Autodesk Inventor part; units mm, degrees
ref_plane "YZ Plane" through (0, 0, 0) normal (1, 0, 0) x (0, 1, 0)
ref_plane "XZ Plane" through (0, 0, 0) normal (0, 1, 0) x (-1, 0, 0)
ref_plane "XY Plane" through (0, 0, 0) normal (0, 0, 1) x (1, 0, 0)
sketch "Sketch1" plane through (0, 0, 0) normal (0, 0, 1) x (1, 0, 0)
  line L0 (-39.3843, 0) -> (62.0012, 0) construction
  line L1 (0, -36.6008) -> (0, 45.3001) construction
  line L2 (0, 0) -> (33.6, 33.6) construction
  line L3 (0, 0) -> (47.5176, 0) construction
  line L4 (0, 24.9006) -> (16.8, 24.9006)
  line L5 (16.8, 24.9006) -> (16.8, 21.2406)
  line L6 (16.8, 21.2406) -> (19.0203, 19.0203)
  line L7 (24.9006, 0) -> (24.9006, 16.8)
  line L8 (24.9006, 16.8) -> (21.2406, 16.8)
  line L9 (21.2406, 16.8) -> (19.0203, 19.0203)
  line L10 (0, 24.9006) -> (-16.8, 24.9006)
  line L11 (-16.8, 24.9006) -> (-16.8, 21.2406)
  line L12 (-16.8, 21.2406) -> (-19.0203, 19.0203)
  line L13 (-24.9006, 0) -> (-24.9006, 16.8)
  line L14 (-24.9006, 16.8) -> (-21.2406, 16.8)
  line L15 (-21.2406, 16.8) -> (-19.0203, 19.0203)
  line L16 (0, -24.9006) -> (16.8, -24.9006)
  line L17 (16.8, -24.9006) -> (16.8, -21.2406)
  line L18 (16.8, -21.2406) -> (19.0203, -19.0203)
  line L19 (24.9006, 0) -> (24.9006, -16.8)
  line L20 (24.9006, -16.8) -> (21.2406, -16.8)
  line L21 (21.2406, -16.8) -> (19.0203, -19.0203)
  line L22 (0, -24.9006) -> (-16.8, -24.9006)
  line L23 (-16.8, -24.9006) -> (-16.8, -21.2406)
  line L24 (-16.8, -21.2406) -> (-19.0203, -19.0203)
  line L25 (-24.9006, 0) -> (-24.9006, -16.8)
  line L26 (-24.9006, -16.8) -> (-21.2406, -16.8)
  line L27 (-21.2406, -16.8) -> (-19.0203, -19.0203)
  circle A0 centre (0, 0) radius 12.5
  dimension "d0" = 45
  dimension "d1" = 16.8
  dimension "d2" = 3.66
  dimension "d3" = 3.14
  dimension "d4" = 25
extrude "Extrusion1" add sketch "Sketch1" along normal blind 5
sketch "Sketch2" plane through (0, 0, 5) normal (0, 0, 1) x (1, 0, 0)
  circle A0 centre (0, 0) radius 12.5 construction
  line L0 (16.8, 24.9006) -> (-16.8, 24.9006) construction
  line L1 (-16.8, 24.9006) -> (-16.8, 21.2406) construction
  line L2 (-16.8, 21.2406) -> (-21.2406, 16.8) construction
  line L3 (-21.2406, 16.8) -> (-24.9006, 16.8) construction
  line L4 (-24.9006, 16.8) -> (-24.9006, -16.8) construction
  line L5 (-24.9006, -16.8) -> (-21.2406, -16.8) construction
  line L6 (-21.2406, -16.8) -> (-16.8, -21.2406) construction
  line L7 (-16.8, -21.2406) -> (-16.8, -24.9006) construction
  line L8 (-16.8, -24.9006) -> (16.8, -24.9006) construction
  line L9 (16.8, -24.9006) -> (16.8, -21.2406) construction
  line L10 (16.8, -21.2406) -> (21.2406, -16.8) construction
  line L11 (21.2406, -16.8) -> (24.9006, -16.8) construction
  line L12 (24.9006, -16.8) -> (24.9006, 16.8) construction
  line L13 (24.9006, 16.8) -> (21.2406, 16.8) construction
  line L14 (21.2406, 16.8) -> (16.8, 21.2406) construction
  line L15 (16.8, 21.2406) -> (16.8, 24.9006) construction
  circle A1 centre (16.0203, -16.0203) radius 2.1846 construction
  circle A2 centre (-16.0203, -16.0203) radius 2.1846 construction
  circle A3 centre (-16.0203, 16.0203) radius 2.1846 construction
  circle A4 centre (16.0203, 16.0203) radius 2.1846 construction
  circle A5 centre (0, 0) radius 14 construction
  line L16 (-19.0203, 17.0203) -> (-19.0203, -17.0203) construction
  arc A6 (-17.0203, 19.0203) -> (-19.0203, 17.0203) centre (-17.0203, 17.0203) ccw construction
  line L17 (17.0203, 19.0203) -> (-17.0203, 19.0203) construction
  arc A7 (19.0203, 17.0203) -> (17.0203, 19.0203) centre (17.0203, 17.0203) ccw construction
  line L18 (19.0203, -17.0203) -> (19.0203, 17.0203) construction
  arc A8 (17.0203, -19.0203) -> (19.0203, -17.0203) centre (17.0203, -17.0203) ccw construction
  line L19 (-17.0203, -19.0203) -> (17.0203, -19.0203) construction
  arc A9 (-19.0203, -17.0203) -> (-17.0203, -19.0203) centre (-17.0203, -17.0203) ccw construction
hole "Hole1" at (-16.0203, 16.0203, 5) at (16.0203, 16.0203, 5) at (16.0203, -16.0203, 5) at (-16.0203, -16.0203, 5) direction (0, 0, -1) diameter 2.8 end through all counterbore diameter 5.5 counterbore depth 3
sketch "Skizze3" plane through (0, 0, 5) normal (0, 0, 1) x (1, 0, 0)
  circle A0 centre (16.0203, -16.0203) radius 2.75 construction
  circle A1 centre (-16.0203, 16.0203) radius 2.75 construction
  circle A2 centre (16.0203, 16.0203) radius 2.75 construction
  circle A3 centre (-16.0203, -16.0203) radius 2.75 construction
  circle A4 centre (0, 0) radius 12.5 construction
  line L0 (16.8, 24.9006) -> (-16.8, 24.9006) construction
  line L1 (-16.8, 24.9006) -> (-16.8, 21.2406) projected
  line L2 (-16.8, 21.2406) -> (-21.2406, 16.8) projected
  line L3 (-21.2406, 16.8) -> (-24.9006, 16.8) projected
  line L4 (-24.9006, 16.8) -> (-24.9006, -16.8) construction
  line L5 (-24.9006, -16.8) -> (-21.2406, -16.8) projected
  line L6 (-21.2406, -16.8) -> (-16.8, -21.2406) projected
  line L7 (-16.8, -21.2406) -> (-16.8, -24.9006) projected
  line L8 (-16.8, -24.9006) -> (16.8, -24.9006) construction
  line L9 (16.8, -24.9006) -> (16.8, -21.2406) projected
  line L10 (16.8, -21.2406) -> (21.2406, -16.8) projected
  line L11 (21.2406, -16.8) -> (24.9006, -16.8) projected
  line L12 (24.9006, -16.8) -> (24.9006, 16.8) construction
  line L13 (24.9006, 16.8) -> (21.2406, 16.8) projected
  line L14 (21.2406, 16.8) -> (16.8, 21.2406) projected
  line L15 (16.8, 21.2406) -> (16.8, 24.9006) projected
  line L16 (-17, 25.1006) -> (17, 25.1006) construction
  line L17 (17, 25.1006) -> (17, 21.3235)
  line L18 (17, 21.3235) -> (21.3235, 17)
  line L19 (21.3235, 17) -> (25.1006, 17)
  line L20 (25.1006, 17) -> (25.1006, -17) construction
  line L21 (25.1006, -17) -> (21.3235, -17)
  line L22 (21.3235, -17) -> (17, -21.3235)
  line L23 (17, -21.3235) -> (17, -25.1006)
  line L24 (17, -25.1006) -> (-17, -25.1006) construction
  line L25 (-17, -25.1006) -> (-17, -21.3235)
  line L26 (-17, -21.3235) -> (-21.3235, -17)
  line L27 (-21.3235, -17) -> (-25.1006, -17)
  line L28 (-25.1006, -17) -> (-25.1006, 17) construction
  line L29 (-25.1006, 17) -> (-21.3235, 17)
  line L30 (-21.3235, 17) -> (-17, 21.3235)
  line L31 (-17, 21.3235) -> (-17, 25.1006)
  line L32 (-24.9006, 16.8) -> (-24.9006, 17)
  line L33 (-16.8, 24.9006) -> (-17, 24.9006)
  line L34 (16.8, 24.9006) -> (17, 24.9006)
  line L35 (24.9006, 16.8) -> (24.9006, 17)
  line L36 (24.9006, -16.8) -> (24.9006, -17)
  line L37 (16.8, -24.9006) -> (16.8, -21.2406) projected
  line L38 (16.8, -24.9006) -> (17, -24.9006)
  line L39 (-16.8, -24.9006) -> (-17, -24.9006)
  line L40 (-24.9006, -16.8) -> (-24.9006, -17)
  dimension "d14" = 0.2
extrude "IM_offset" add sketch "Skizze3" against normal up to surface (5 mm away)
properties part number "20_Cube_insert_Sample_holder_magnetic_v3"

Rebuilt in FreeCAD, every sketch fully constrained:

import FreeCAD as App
import Part
import Sketcher

doc = App.newDocument("Part")
body = doc.addObject("PartDesign::Body", "Body")

sketch1 = body.newObject("Sketcher::SketchObject", "Sketch")
sketch1.AttachmentSupport = (doc.getObject("XY_Plane"), [""])
sketch1.MapMode = "FlatFace"
sketch1.addGeometry([
    Part.LineSegment(App.Vector(16.8, 24.9, 0), App.Vector(-16.8, 24.9, 0)),
    Part.LineSegment(App.Vector(-16.8, 24.9, 0), App.Vector(-16.8, 21.2, 0)),
    Part.LineSegment(App.Vector(-16.8, 21.2, 0), App.Vector(-21.2, 16.8, 0)),
    Part.LineSegment(App.Vector(-21.2, 16.8, 0), App.Vector(-24.9, 16.8, 0)),
    Part.LineSegment(App.Vector(-24.9, 16.8, 0), App.Vector(-24.9, -16.8, 0)),
    Part.LineSegment(App.Vector(-24.9, -16.8, 0), App.Vector(-21.2, -16.8, 0)),
    Part.LineSegment(App.Vector(-21.2, -16.8, 0), App.Vector(-16.8, -21.2, 0)),
    Part.LineSegment(App.Vector(-16.8, -21.2, 0), App.Vector(-16.8, -24.9, 0)),
    Part.LineSegment(App.Vector(-16.8, -24.9, 0), App.Vector(16.8, -24.9, 0)),
    Part.LineSegment(App.Vector(16.8, -24.9, 0), App.Vector(16.8, -21.2, 0)),
    Part.LineSegment(App.Vector(16.8, -21.2, 0), App.Vector(21.2, -16.8, 0)),
    Part.LineSegment(App.Vector(21.2, -16.8, 0), App.Vector(24.9, -16.8, 0)),
    Part.LineSegment(App.Vector(24.9, -16.8, 0), App.Vector(24.9, 16.8, 0)),
    Part.LineSegment(App.Vector(24.9, 16.8, 0), App.Vector(21.2, 16.8, 0)),
    Part.LineSegment(App.Vector(21.2, 16.8, 0), App.Vector(16.8, 21.2, 0)),
    Part.LineSegment(App.Vector(16.8, 21.2, 0), App.Vector(16.8, 24.9, 0)),
    Part.Circle(App.Vector(0, 0, 0), App.Vector(0, 0, 1), 12.5),
], False)
sketch1.addConstraint([
    Sketcher.Constraint("Coincident", 0, 2, 1, 1),
    Sketcher.Constraint("Coincident", 1, 2, 2, 1),
    Sketcher.Constraint("Coincident", 2, 2, 3, 1),
    Sketcher.Constraint("Coincident", 3, 2, 4, 1),
    Sketcher.Constraint("Coincident", 4, 2, 5, 1),
    Sketcher.Constraint("Coincident", 5, 2, 6, 1),
    Sketcher.Constraint("Coincident", 6, 2, 7, 1),
    Sketcher.Constraint("Coincident", 7, 2, 8, 1),
    Sketcher.Constraint("Coincident", 8, 2, 9, 1),
    Sketcher.Constraint("Coincident", 9, 2, 10, 1),
    Sketcher.Constraint("Coincident", 10, 2, 11, 1),
    Sketcher.Constraint("Coincident", 11, 2, 12, 1),
    Sketcher.Constraint("Coincident", 12, 2, 13, 1),
    Sketcher.Constraint("Coincident", 13, 2, 14, 1),
    Sketcher.Constraint("Coincident", 14, 2, 15, 1),
    Sketcher.Constraint("Coincident", 15, 2, 0, 1),
    Sketcher.Constraint("Horizontal", 0),
    Sketcher.Constraint("Vertical", 1),
    Sketcher.Constraint("Horizontal", 3),
    Sketcher.Constraint("Vertical", 4),
    Sketcher.Constraint("Horizontal", 5),
    Sketcher.Constraint("Vertical", 7),
    Sketcher.Constraint("Horizontal", 8),
    Sketcher.Constraint("Vertical", 9),
    Sketcher.Constraint("Horizontal", 11),
    Sketcher.Constraint("Vertical", 12),
    Sketcher.Constraint("Horizontal", 13),
    Sketcher.Constraint("Vertical", 15),
    Sketcher.Constraint("Coincident", 16, 3, -1, 1),
    Sketcher.Constraint("Symmetric", 0, 2, 8, 2, -1, 1),
    Sketcher.Constraint("Symmetric", 2, 2, 10, 2, -1, 1),
    Sketcher.Constraint("Symmetric", 4, 2, 12, 2, -1, 1),
    Sketcher.Constraint("Symmetric", 6, 2, 14, 2, -1, 1),
    Sketcher.Constraint("Symmetric", 6, 2, 9, 2, -2),
    Sketcher.Constraint("Symmetric", 5, 2, 10, 2, -2),
    Sketcher.Constraint("Perpendicular", 2, 6),
    Sketcher.Constraint("Perpendicular", 6, 10),
    Sketcher.Constraint("Perpendicular", 10, 14),
    Sketcher.Constraint("Equal", 13, 1),
    Sketcher.Constraint("Equal", 8, 4),
    Sketcher.Constraint("Diameter", 16, 25.0),
    Sketcher.Constraint("DistanceX", 3, 2, 3, 1, 3.66),
    Sketcher.Constraint("DistanceX", 0, 2, -1, 1, 16.8),
    Sketcher.Constraint("Distance", 2, 6.28),
])
pad1 = body.newObject("PartDesign::Pad", "Pad")
pad1.Profile = sketch1
pad1.Length = 5

sketch2 = body.newObject("Sketcher::SketchObject", "Sketch001")
sketch2.AttachmentSupport = (doc.getObject("XY_Plane"), [""])
sketch2.MapMode = "FlatFace"
sketch2.AttachmentOffset = App.Placement(App.Vector(0, 0, 5), App.Rotation())
sketch2.addGeometry([
    Part.Circle(App.Vector(-16, 16, 0), App.Vector(0, 0, 1), 1.4),
    Part.Circle(App.Vector(16, 16, 0), App.Vector(0, 0, 1), 1.4),
    Part.Circle(App.Vector(16, -16, 0), App.Vector(0, 0, 1), 1.4),
    Part.Circle(App.Vector(-16, -16, 0), App.Vector(0, 0, 1), 1.4),
], False)
sketch2.addConstraint([
    Sketcher.Constraint("Equal", 0, 1),
    Sketcher.Constraint("Equal", 1, 2),
    Sketcher.Constraint("Equal", 2, 3),
    Sketcher.Constraint("Symmetric", 0, 3, 2, 3, -1, 1),
    Sketcher.Constraint("Symmetric", 1, 3, 3, 3, -1, 1),
    Sketcher.Constraint("Symmetric", 0, 3, 1, 3, -2),
    Sketcher.Constraint("Diameter", 0, 2.8),
    Sketcher.Constraint("DistanceX", 0, 3, -1, 1, 16.0203),
    Sketcher.Constraint("DistanceY", -1, 1, 0, 3, 16.0203),
])
doc.recompute()
hole = body.newObject("PartDesign::Hole", "Hole")
hole.Profile = sketch2
hole.ThreadType = "None"
hole.Diameter = 2.8
hole.DepthType = "ThroughAll"
hole.HoleCutType = "Counterbore"
hole.HoleCutDiameter = 5.5
hole.HoleCutDepth = 3

sketch3 = body.newObject("Sketcher::SketchObject", "Sketch002")
sketch3.AttachmentSupport = (doc.getObject("XY_Plane"), [""])
sketch3.MapMode = "FlatFace"
sketch3.AttachmentOffset = App.Placement(App.Vector(0, 0, 5), App.Rotation())
sketch3.addGeometry([
    Part.LineSegment(App.Vector(-16.8, 21.24, 0), App.Vector(-16.8, 24.9, 0)),
    Part.LineSegment(App.Vector(-16.8, 24.9, 0), App.Vector(-17, 24.9, 0)),
    Part.LineSegment(App.Vector(-17, 24.9, 0), App.Vector(-17, 21.32, 0)),
    Part.LineSegment(App.Vector(-17, 21.32, 0), App.Vector(-21.32, 17, 0)),
    Part.LineSegment(App.Vector(-21.32, 17, 0), App.Vector(-24.9, 17, 0)),
    Part.LineSegment(App.Vector(-24.9, 17, 0), App.Vector(-24.9, 16.8, 0)),
    Part.LineSegment(App.Vector(-24.9, 16.8, 0), App.Vector(-21.24, 16.8, 0)),
    Part.LineSegment(App.Vector(-21.24, 16.8, 0), App.Vector(-16.8, 21.24, 0)),
    Part.LineSegment(App.Vector(-21.24, -16.8, 0), App.Vector(-24.9, -16.8, 0)),
    Part.LineSegment(App.Vector(-24.9, -16.8, 0), App.Vector(-24.9, -17, 0)),
    Part.LineSegment(App.Vector(-24.9, -17, 0), App.Vector(-21.32, -17, 0)),
    Part.LineSegment(App.Vector(-21.32, -17, 0), App.Vector(-17, -21.32, 0)),
    Part.LineSegment(App.Vector(-17, -21.32, 0), App.Vector(-17, -24.9, 0)),
    Part.LineSegment(App.Vector(-17, -24.9, 0), App.Vector(-16.8, -24.9, 0)),
    Part.LineSegment(App.Vector(-16.8, -24.9, 0), App.Vector(-16.8, -21.24, 0)),
    Part.LineSegment(App.Vector(-16.8, -21.24, 0), App.Vector(-21.24, -16.8, 0)),
    Part.LineSegment(App.Vector(16.8, -21.24, 0), App.Vector(16.8, -24.9, 0)),
    Part.LineSegment(App.Vector(16.8, -24.9, 0), App.Vector(17, -24.9, 0)),
    Part.LineSegment(App.Vector(17, -24.9, 0), App.Vector(17, -21.32, 0)),
    Part.LineSegment(App.Vector(17, -21.32, 0), App.Vector(21.32, -17, 0)),
    Part.LineSegment(App.Vector(21.32, -17, 0), App.Vector(24.9, -17, 0)),
    Part.LineSegment(App.Vector(24.9, -17, 0), App.Vector(24.9, -16.8, 0)),
    Part.LineSegment(App.Vector(24.9, -16.8, 0), App.Vector(21.24, -16.8, 0)),
    Part.LineSegment(App.Vector(21.24, -16.8, 0), App.Vector(16.8, -21.24, 0)),
    Part.LineSegment(App.Vector(21.24, 16.8, 0), App.Vector(24.9, 16.8, 0)),
    Part.LineSegment(App.Vector(24.9, 16.8, 0), App.Vector(24.9, 17, 0)),
    Part.LineSegment(App.Vector(24.9, 17, 0), App.Vector(21.32, 17, 0)),
    Part.LineSegment(App.Vector(21.32, 17, 0), App.Vector(17, 21.32, 0)),
    Part.LineSegment(App.Vector(17, 21.32, 0), App.Vector(17, 24.9, 0)),
    Part.LineSegment(App.Vector(17, 24.9, 0), App.Vector(16.8, 24.9, 0)),
    Part.LineSegment(App.Vector(16.8, 24.9, 0), App.Vector(16.8, 21.24, 0)),
    Part.LineSegment(App.Vector(16.8, 21.24, 0), App.Vector(21.24, 16.8, 0)),
], False)
sketch3.addConstraint([
    Sketcher.Constraint("Coincident", 0, 2, 1, 1),
    Sketcher.Constraint("Coincident", 1, 2, 2, 1),
    Sketcher.Constraint("Coincident", 2, 2, 3, 1),
    Sketcher.Constraint("Coincident", 3, 2, 4, 1),
    Sketcher.Constraint("Coincident", 4, 2, 5, 1),
    Sketcher.Constraint("Coincident", 5, 2, 6, 1),
    Sketcher.Constraint("Coincident", 6, 2, 7, 1),
    Sketcher.Constraint("Coincident", 7, 2, 0, 1),
    Sketcher.Constraint("Coincident", 8, 2, 9, 1),
    Sketcher.Constraint("Coincident", 9, 2, 10, 1),
    Sketcher.Constraint("Coincident", 10, 2, 11, 1),
    Sketcher.Constraint("Coincident", 11, 2, 12, 1),
    Sketcher.Constraint("Coincident", 12, 2, 13, 1),
    Sketcher.Constraint("Coincident", 13, 2, 14, 1),
    Sketcher.Constraint("Coincident", 14, 2, 15, 1),
    Sketcher.Constraint("Coincident", 15, 2, 8, 1),
    Sketcher.Constraint("Coincident", 16, 2, 17, 1),
    Sketcher.Constraint("Coincident", 17, 2, 18, 1),
    Sketcher.Constraint("Coincident", 18, 2, 19, 1),
    Sketcher.Constraint("Coincident", 19, 2, 20, 1),
    Sketcher.Constraint("Coincident", 20, 2, 21, 1),
    Sketcher.Constraint("Coincident", 21, 2, 22, 1),
    Sketcher.Constraint("Coincident", 22, 2, 23, 1),
    Sketcher.Constraint("Coincident", 23, 2, 16, 1),
    Sketcher.Constraint("Coincident", 24, 2, 25, 1),
    Sketcher.Constraint("Coincident", 25, 2, 26, 1),
    Sketcher.Constraint("Coincident", 26, 2, 27, 1),
    Sketcher.Constraint("Coincident", 27, 2, 28, 1),
    Sketcher.Constraint("Coincident", 28, 2, 29, 1),
    Sketcher.Constraint("Coincident", 29, 2, 30, 1),
    Sketcher.Constraint("Coincident", 30, 2, 31, 1),
    Sketcher.Constraint("Coincident", 31, 2, 24, 1),
    Sketcher.Constraint("Vertical", 0),
    Sketcher.Constraint("Horizontal", 1),
    Sketcher.Constraint("Vertical", 2),
    Sketcher.Constraint("Horizontal", 4),
    Sketcher.Constraint("Vertical", 5),
    Sketcher.Constraint("Horizontal", 6),
    Sketcher.Constraint("Horizontal", 8),
    Sketcher.Constraint("Vertical", 9),
    Sketcher.Constraint("Horizontal", 10),
    Sketcher.Constraint("Vertical", 12),
    Sketcher.Constraint("Horizontal", 13),
    Sketcher.Constraint("Vertical", 14),
    Sketcher.Constraint("Vertical", 16),
    Sketcher.Constraint("Horizontal", 17),
    Sketcher.Constraint("Vertical", 18),
    Sketcher.Constraint("Horizontal", 20),
    Sketcher.Constraint("Vertical", 21),
    Sketcher.Constraint("Horizontal", 22),
    Sketcher.Constraint("Horizontal", 24),
    Sketcher.Constraint("Vertical", 25),
    Sketcher.Constraint("Horizontal", 26),
    Sketcher.Constraint("Vertical", 28),
    Sketcher.Constraint("Horizontal", 29),
    Sketcher.Constraint("Vertical", 30),
    Sketcher.Constraint("Symmetric", 0, 2, 16, 2, -1, 1),
    Sketcher.Constraint("Symmetric", 2, 2, 18, 2, -1, 1),
    Sketcher.Constraint("Symmetric", 3, 2, 19, 2, -1, 1),
    Sketcher.Constraint("Symmetric", 5, 2, 21, 2, -1, 1),
    Sketcher.Constraint("Symmetric", 8, 2, 24, 2, -1, 1),
    Sketcher.Constraint("Symmetric", 10, 2, 26, 2, -1, 1),
    Sketcher.Constraint("Symmetric", 11, 2, 27, 2, -1, 1),
    Sketcher.Constraint("Symmetric", 13, 2, 29, 2, -1, 1),
    Sketcher.Constraint("Symmetric", 13, 2, 16, 2, -2),
    Sketcher.Constraint("Symmetric", 11, 2, 18, 2, -2),
    Sketcher.Constraint("Symmetric", 10, 2, 19, 2, -2),
    Sketcher.Constraint("Symmetric", 8, 2, 21, 2, -2),
    Sketcher.Constraint("Parallel", 3, 7),
    Sketcher.Constraint("Perpendicular", 7, 11),
    Sketcher.Constraint("Parallel", 11, 15),
    Sketcher.Constraint("Parallel", 19, 23),
    Sketcher.Constraint("Parallel", 27, 31),
    Sketcher.Constraint("Horizontal", 14, 2, 23, 2),
    Sketcher.Constraint("Horizontal", 7, 2, 30, 2),
    Sketcher.Constraint("Vertical", 6, 2, 15, 2),
    Sketcher.Constraint("Equal", 24, 0),
    Sketcher.Constraint("Equal", 26, 2),
    Sketcher.Constraint("DistanceX", 1, 2, 1, 1, 0.2),
    Sketcher.Constraint("DistanceX", 1, 2, -1, 1, 17.0),
    Sketcher.Constraint("DistanceY", -1, 1, 3, 2, 17.0),
    Sketcher.Constraint("DistanceX", 6, 1, 6, 2, 3.66),
    Sketcher.Constraint("Distance", 7, 6.28),
    Sketcher.Constraint("DistanceX", 4, 2, 4, 1, 3.577),
])
pad2 = body.newObject("PartDesign::Pad", "Pad001")
pad2.Profile = sketch3
pad2.Length = 5
pad2.Reversed = True

doc.recompute()
